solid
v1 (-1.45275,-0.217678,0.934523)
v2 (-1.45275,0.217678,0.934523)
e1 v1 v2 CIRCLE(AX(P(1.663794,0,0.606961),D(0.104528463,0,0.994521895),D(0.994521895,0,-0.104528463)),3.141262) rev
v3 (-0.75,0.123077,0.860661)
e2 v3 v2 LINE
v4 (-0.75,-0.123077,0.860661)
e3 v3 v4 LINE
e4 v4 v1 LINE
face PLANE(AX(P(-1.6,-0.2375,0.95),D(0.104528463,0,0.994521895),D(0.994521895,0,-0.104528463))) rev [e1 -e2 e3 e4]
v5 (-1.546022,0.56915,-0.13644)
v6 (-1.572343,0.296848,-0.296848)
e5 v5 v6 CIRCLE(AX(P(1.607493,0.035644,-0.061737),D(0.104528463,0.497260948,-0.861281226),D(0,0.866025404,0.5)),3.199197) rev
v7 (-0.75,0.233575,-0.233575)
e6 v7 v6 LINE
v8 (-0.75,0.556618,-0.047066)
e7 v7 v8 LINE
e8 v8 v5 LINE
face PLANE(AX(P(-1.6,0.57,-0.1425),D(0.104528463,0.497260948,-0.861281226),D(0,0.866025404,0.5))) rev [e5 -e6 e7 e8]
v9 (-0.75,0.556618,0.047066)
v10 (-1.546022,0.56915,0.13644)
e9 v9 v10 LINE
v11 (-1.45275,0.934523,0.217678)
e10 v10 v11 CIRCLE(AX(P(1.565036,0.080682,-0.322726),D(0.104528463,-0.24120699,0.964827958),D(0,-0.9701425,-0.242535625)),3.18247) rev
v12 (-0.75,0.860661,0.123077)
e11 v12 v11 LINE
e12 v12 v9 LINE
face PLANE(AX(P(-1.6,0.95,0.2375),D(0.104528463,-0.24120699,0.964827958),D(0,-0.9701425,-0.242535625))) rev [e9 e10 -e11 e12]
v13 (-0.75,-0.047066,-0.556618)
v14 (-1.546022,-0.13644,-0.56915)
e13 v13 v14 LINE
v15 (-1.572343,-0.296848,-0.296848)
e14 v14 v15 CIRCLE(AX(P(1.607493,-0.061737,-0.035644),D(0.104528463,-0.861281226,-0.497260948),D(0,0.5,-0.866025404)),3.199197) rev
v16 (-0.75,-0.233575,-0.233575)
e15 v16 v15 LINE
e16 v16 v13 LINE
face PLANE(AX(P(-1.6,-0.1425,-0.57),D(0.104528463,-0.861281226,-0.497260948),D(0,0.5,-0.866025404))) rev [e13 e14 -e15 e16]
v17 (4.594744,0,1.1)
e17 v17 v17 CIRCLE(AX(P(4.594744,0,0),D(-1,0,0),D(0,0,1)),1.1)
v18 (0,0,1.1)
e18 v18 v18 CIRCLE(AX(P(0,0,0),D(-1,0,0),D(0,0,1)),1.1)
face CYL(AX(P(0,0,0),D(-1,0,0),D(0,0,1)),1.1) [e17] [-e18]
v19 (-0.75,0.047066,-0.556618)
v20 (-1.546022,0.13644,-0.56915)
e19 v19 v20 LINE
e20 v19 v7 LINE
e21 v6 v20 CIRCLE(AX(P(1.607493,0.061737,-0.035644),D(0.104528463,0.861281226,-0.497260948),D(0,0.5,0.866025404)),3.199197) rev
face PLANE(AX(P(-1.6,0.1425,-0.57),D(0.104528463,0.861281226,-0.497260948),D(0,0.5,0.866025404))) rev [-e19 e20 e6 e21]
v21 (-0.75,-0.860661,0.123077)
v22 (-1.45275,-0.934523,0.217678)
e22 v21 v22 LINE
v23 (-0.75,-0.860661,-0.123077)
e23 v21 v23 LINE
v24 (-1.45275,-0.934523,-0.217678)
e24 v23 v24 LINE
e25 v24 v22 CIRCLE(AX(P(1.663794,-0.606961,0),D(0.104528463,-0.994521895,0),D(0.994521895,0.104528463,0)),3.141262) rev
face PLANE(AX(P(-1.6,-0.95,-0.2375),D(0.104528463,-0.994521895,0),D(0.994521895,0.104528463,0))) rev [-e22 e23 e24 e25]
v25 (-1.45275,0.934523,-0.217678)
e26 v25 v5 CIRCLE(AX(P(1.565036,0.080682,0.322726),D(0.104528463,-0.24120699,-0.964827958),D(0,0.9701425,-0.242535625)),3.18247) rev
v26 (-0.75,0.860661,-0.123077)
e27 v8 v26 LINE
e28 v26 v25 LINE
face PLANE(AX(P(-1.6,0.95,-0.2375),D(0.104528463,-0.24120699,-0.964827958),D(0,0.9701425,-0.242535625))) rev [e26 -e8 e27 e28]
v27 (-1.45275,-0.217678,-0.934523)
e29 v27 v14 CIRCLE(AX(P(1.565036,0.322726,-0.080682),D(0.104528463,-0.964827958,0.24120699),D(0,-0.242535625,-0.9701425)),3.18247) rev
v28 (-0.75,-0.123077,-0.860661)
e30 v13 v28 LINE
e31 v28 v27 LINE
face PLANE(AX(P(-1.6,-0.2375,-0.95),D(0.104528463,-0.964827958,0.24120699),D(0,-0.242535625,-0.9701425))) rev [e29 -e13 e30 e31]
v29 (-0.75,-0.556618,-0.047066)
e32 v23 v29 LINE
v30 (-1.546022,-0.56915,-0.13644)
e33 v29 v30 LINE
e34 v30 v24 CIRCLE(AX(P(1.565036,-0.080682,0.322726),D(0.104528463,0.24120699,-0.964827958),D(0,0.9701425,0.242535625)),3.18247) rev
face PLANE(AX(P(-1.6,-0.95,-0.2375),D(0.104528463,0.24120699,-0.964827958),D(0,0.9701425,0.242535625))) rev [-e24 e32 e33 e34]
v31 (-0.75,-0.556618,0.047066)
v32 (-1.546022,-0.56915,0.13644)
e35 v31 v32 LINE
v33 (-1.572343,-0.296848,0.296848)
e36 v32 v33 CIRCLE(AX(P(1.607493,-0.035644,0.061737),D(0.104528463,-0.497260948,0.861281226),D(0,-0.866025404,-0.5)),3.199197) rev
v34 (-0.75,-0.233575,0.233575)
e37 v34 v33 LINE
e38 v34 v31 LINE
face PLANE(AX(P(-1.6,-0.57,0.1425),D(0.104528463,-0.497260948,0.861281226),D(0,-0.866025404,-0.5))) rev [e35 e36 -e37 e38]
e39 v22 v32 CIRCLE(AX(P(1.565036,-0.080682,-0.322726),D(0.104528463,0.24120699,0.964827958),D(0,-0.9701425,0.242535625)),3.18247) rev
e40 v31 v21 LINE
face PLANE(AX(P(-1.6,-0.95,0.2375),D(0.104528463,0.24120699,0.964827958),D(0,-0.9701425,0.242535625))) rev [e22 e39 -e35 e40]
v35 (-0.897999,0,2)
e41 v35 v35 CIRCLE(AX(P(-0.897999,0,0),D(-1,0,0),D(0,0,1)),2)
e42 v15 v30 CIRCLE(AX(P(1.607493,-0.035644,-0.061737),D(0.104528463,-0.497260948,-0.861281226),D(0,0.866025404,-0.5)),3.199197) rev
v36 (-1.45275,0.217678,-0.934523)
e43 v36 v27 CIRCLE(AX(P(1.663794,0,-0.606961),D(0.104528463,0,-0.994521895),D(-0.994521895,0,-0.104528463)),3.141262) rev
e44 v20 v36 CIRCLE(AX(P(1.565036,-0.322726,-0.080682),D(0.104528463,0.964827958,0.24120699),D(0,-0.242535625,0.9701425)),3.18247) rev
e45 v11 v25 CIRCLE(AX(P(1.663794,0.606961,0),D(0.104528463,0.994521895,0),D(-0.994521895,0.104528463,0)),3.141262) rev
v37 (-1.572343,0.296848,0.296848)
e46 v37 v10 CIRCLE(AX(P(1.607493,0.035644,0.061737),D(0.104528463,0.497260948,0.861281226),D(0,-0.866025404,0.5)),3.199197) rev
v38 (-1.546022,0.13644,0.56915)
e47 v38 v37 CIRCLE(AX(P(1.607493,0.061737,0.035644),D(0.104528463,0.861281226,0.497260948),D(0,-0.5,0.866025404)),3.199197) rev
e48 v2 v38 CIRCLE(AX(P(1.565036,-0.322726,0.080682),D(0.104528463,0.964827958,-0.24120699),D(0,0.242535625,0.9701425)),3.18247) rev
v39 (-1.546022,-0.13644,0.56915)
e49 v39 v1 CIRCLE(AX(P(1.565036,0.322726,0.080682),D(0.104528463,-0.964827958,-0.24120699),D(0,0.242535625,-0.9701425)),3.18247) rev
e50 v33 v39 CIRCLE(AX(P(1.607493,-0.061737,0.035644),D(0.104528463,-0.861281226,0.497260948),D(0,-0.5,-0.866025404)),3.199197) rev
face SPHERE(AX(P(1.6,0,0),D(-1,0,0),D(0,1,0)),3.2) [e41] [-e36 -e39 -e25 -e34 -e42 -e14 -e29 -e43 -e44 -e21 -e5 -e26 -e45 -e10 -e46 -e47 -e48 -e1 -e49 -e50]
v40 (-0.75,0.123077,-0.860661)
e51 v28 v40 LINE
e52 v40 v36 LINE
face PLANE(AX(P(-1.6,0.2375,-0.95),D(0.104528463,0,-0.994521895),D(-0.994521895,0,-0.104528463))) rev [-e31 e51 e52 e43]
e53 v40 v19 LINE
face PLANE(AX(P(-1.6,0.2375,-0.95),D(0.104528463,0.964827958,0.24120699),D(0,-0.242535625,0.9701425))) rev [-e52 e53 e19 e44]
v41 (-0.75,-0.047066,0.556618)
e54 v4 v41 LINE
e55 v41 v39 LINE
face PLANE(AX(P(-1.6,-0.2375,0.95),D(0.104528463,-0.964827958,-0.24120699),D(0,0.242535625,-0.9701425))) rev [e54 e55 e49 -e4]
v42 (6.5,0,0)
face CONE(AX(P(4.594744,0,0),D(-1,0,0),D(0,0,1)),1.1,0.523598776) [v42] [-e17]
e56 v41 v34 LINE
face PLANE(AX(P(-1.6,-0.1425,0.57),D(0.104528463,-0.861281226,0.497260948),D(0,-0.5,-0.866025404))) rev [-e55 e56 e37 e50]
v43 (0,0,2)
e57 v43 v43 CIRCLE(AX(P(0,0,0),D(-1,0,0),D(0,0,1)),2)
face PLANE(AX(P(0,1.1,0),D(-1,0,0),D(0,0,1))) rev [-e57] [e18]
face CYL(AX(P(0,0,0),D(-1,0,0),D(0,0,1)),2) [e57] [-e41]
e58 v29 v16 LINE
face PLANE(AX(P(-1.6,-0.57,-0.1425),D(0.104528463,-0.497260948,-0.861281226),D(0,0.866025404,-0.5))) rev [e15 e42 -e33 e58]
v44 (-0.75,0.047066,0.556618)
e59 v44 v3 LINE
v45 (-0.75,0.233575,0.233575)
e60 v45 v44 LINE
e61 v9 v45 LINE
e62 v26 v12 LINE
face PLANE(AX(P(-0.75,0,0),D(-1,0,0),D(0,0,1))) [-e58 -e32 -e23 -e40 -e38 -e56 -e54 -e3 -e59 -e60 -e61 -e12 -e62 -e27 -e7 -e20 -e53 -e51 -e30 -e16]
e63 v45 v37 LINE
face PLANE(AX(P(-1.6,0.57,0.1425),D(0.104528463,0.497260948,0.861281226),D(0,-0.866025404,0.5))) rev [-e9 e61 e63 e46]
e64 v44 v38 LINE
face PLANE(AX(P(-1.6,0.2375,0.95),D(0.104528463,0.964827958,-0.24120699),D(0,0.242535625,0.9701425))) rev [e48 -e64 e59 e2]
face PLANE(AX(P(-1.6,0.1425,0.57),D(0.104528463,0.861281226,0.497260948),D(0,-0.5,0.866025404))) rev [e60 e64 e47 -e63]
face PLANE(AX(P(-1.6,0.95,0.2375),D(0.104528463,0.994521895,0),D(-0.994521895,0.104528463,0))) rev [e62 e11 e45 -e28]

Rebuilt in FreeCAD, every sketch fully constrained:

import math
import FreeCAD as App
import Part
import Sketcher

V = App.Vector
Q = App.Units.Quantity


def edges_at(feature, points):
    """Names of the edges that pass closest to the given points."""
    edges = feature.Shape.Edges
    near = lambda p: min(range(len(edges)), key=lambda i: edges[i].distToShape(Part.Vertex(*p))[0])
    return sorted({f"Edge{near(p) + 1}" for p in points})

doc = App.newDocument("Part")
body = doc.addObject("PartDesign::Body", "Body")

# Sketch on XY plane
sketch1 = body.newObject("Sketcher::SketchObject", "Sketch")
sketch1.AttachmentSupport = (doc.getObject("XY_Plane"), [""])
sketch1.MapMode = "FlatFace"
sketch1.addGeometry(Part.LineSegment(V(0, 2, 0), V(-0.9, 2, 0)), False)
sketch1.addGeometry(Part.ArcOfCircle(Part.Circle(V(1.6, 0, 0), V(0, 0, 1), 3.2), math.radians(141), math.radians(180)), False)
sketch1.addGeometry(Part.LineSegment(V(-1.6, 0, 0), V(6.5, 0, 0)), False)
sketch1.addGeometry(Part.LineSegment(V(6.5, 0, 0), V(6.5, 1.1, 0)), False)
sketch1.addGeometry(Part.LineSegment(V(6.5, 1.1, 0), V(0, 1.1, 0)), False)
sketch1.addGeometry(Part.LineSegment(V(0, 1.1, 0), V(0, 2, 0)), False)
sketch1.addConstraint(Sketcher.Constraint("Coincident", 0, 2, 1, 1))
sketch1.addConstraint(Sketcher.Constraint("Coincident", 1, 2, 2, 1))
sketch1.addConstraint(Sketcher.Constraint("Coincident", 2, 2, 3, 1))
sketch1.addConstraint(Sketcher.Constraint("Coincident", 3, 2, 4, 1))
sketch1.addConstraint(Sketcher.Constraint("Coincident", 4, 2, 5, 1))
sketch1.addConstraint(Sketcher.Constraint("Coincident", 5, 2, 0, 1))
sketch1.addConstraint(Sketcher.Constraint("Horizontal", 0))
sketch1.addConstraint(Sketcher.Constraint("Horizontal", 2))
sketch1.addConstraint(Sketcher.Constraint("Vertical", 3))
sketch1.addConstraint(Sketcher.Constraint("Horizontal", 4))
sketch1.addConstraint(Sketcher.Constraint("Vertical", 5))
sketch1.addConstraint(Sketcher.Constraint("PointOnObject", 1, 3, -1))
sketch1.addConstraint(Sketcher.Constraint("PointOnObject", 1, 2, -1))
sketch1.addConstraint(Sketcher.Constraint("PointOnObject", 4, 2, -2))
sketch1.addConstraint(Sketcher.Constraint("Radius", 1, 3.2))
sketch1.addConstraint(Sketcher.Constraint("DistanceX", 2, 1, 2, 2, 8.1))
sketch1.addConstraint(Sketcher.Constraint("DistanceX", 4, 2, 4, 1, 6.5))
sketch1.addConstraint(Sketcher.Constraint("DistanceY", 3, 1, 3, 2, 1.1))
sketch1.addConstraint(Sketcher.Constraint("DistanceY", 5, 1, 5, 2, 0.9))
revolution = body.newObject("PartDesign::Revolution", "Revolution")
revolution.Profile = sketch1
revolution.ReferenceAxis = (sketch1, ["H_Axis"])
revolution.Angle = 360
doc.recompute()

chamfer = body.newObject("PartDesign::Chamfer", "Chamfer")
chamfer.Base = (revolution, edges_at(revolution, [(6.5, -1.1, 0)]))
chamfer.ChamferType = "Two distances"
chamfer.Size = 0.22
chamfer.Size2 = 0.381051

# Sketch on XY plane
sketch2 = body.newObject("Sketcher::SketchObject", "Sketch001")
sketch2.AttachmentSupport = (doc.getObject("XY_Plane"), [""])
sketch2.MapMode = "FlatFace"
sketch2.addGeometry(Part.LineSegment(V(4.59, 1.1, 0), V(6.5, 0, 0)), False)
sketch2.addGeometry(Part.LineSegment(V(6.5, 0, 0), V(6.6, 0, 0)), False)
sketch2.addGeometry(Part.LineSegment(V(6.6, 0, 0), V(6.6, 1.2, 0)), False)
sketch2.addGeometry(Part.LineSegment(V(6.6, 1.2, 0), V(4.59, 1.2, 0)), False)
sketch2.addGeometry(Part.LineSegment(V(4.59, 1.2, 0), V(4.59, 1.1, 0)), False)
sketch2.addConstraint(Sketcher.Constraint("Coincident", 0, 2, 1, 1))
sketch2.addConstraint(Sketcher.Constraint("Coincident", 1, 2, 2, 1))
sketch2.addConstraint(Sketcher.Constraint("Coincident", 2, 2, 3, 1))
sketch2.addConstraint(Sketcher.Constraint("Coincident", 3, 2, 4, 1))
sketch2.addConstraint(Sketcher.Constraint("Coincident", 4, 2, 0, 1))
sketch2.addConstraint(Sketcher.Constraint("Horizontal", 1))
sketch2.addConstraint(Sketcher.Constraint("Vertical", 2))
sketch2.addConstraint(Sketcher.Constraint("Horizontal", 3))
sketch2.addConstraint(Sketcher.Constraint("Vertical", 4))
sketch2.addConstraint(Sketcher.Constraint("PointOnObject", 0, 2, -1))
sketch2.addConstraint(Sketcher.Constraint("Equal", 1, 4))
sketch2.addConstraint(Sketcher.Constraint("Angle", 0, Q("-30 deg")))
sketch2.addConstraint(Sketcher.Constraint("DistanceX", 1, 1, 1, 2, 0.1))
sketch2.addConstraint(Sketcher.Constraint("DistanceY", 2, 1, 2, 2, 1.2))
sketch2.addConstraint(Sketcher.Constraint("DistanceX", -1, 1, 0, 2, 6.5))
groove = body.newObject("PartDesign::Groove", "Groove")
groove.Profile = sketch2
groove.ReferenceAxis = (sketch2, ["H_Axis"])
groove.Angle = 360

# Sketch on YZ plane
sketch3 = body.newObject("Sketcher::SketchObject", "Sketch002")
sketch3.AttachmentSupport = (doc.getObject("YZ_Plane"), [""])
sketch3.MapMode = "FlatFace"
sketch3.AttachmentOffset = App.Placement(V(0, 0, -1.6), App.Rotation())
sketch3.addGeometry(Part.LineSegment(V(0.95, 0.24, 0), V(0.57, 0.14, 0)), False)
sketch3.addGeometry(Part.LineSegment(V(0.57, 0.14, 0), V(0.3, 0.3, 0)), False)
sketch3.addGeometry(Part.LineSegment(V(0.3, 0.3, 0), V(0.14, 0.57, 0)), False)
sketch3.addGeometry(Part.LineSegment(V(0.14, 0.57, 0), V(0.24, 0.95, 0)), False)
sketch3.addGeometry(Part.LineSegment(V(0.24, 0.95, 0), V(-0.24, 0.95, 0)), False)
sketch3.addGeometry(Part.LineSegment(V(-0.24, 0.95, 0), V(-0.14, 0.57, 0)), False)
sketch3.addGeometry(Part.LineSegment(V(-0.14, 0.57, 0), V(-0.3, 0.3, 0)), False)
sketch3.addGeometry(Part.LineSegment(V(-0.3, 0.3, 0), V(-0.57, 0.14, 0)), False)
sketch3.addGeometry(Part.LineSegment(V(-0.57, 0.14, 0), V(-0.95, 0.24, 0)), False)
sketch3.addGeometry(Part.LineSegment(V(-0.95, 0.24, 0), V(-0.95, -0.24, 0)), False)
sketch3.addGeometry(Part.LineSegment(V(-0.95, -0.24, 0), V(-0.57, -0.14, 0)), False)
sketch3.addGeometry(Part.LineSegment(V(-0.57, -0.14, 0), V(-0.3, -0.3, 0)), False)
sketch3.addGeometry(Part.LineSegment(V(-0.3, -0.3, 0), V(-0.14, -0.57, 0)), False)
sketch3.addGeometry(Part.LineSegment(V(-0.14, -0.57, 0), V(-0.24, -0.95, 0)), False)
sketch3.addGeometry(Part.LineSegment(V(-0.24, -0.95, 0), V(0.24, -0.95, 0)), False)
sketch3.addGeometry(Part.LineSegment(V(0.24, -0.95, 0), V(0.14, -0.57, 0)), False)
sketch3.addGeometry(Part.LineSegment(V(0.14, -0.57, 0), V(0.3, -0.3, 0)), False)
sketch3.addGeometry(Part.LineSegment(V(0.3, -0.3, 0), V(0.57, -0.14, 0)), False)
sketch3.addGeometry(Part.LineSegment(V(0.57, -0.14, 0), V(0.95, -0.24, 0)), False)
sketch3.addGeometry(Part.LineSegment(V(0.95, -0.24, 0), V(0.95, 0.24, 0)), False)
sketch3.addConstraint(Sketcher.Constraint("Coincident", 0, 2, 1, 1))
sketch3.addConstraint(Sketcher.Constraint("Coincident", 1, 2, 2, 1))
sketch3.addConstraint(Sketcher.Constraint("Coincident", 2, 2, 3, 1))
sketch3.addConstraint(Sketcher.Constraint("Coincident", 3, 2, 4, 1))
sketch3.addConstraint(Sketcher.Constraint("Coincident", 4, 2, 5, 1))
sketch3.addConstraint(Sketcher.Constraint("Coincident", 5, 2, 6, 1))
sketch3.addConstraint(Sketcher.Constraint("Coincident", 6, 2, 7, 1))
sketch3.addConstraint(Sketcher.Constraint("Coincident", 7, 2, 8, 1))
sketch3.addConstraint(Sketcher.Constraint("Coincident", 8, 2, 9, 1))
sketch3.addConstraint(Sketcher.Constraint("Coincident", 9, 2, 10, 1))
sketch3.addConstraint(Sketcher.Constraint("Coincident", 10, 2, 11, 1))
sketch3.addConstraint(Sketcher.Constraint("Coincident", 11, 2, 12, 1))
sketch3.addConstraint(Sketcher.Constraint("Coincident", 12, 2, 13, 1))
sketch3.addConstraint(Sketcher.Constraint("Coincident", 13, 2, 14, 1))
sketch3.addConstraint(Sketcher.Constraint("Coincident", 14, 2, 15, 1))
sketch3.addConstraint(Sketcher.Constraint("Coincident", 15, 2, 16, 1))
sketch3.addConstraint(Sketcher.Constraint("Coincident", 16, 2, 17, 1))
sketch3.addConstraint(Sketcher.Constraint("Coincident", 17, 2, 18, 1))
sketch3.addConstraint(Sketcher.Constraint("Coincident", 18, 2, 19, 1))
sketch3.addConstraint(Sketcher.Constraint("Coincident", 19, 2, 0, 1))
sketch3.addConstraint(Sketcher.Constraint("Horizontal", 4))
sketch3.addConstraint(Sketcher.Constraint("Vertical", 9))
sketch3.addConstraint(Sketcher.Constraint("Horizontal", 14))
sketch3.addConstraint(Sketcher.Constraint("Vertical", 19))
sketch3.addConstraint(Sketcher.Constraint("Symmetric", 0, 2, 10, 2, -1, 1))
sketch3.addConstraint(Sketcher.Constraint("Symmetric", 1, 2, 11, 2, -1, 1))
sketch3.addConstraint(Sketcher.Constraint("Symmetric", 2, 2, 12, 2, -1, 1))
sketch3.addConstraint(Sketcher.Constraint("Symmetric", 3, 2, 13, 2, -1, 1))
sketch3.addConstraint(Sketcher.Constraint("Symmetric", 5, 2, 15, 2, -1, 1))
sketch3.addConstraint(Sketcher.Constraint("Symmetric", 6, 2, 16, 2, -1, 1))
sketch3.addConstraint(Sketcher.Constraint("Symmetric", 7, 2, 17, 2, -1, 1))
sketch3.addConstraint(Sketcher.Constraint("Symmetric", 8, 2, 18, 2, -1, 1))
sketch3.addConstraint(Sketcher.Constraint("Symmetric", 2, 2, 5, 2, -2))
sketch3.addConstraint(Sketcher.Constraint("Symmetric", 1, 2, 6, 2, -2))
sketch3.addConstraint(Sketcher.Constraint("Symmetric", 0, 2, 7, 2, -2))
sketch3.addConstraint(Sketcher.Constraint("Perpendicular", 0, 5))
sketch3.addConstraint(Sketcher.Constraint("Perpendicular", 1, 6))
sketch3.addConstraint(Sketcher.Constraint("Perpendicular", 3, 8))
sketch3.addConstraint(Sketcher.Constraint("Perpendicular", 5, 10))
sketch3.addConstraint(Sketcher.Constraint("Perpendicular", 10, 15))
sketch3.addConstraint(Sketcher.Constraint("Horizontal", 9, 2, 18, 2))
sketch3.addConstraint(Sketcher.Constraint("Equal", 14, 9))
sketch3.addConstraint(Sketcher.Constraint("Equal", 1, 2))
sketch3.addConstraint(Sketcher.Constraint("Equal", 0, 3))
sketch3.addConstraint(Sketcher.Constraint("Angle", 1, Q("150 deg")))
sketch3.addConstraint(Sketcher.Constraint("DistanceX", 4, 2, 4, 1, 0.475))
sketch3.addConstraint(Sketcher.Constraint("DistanceX", -1, 1, 0, 2, 0.57))
sketch3.addConstraint(Sketcher.Constraint("DistanceY", -1, 1, 3, 2, 0.95))
sketch3.addConstraint(Sketcher.Constraint("DistanceX", 4, 2, 2, 2, 0.38))
pocket1 = body.newObject("PartDesign::Pocket", "Pocket")
pocket1.Profile = sketch3
pocket1.Length = 0.85
pocket1.Reversed = True
pocket1.TaperAngle = -6

doc.recompute()
